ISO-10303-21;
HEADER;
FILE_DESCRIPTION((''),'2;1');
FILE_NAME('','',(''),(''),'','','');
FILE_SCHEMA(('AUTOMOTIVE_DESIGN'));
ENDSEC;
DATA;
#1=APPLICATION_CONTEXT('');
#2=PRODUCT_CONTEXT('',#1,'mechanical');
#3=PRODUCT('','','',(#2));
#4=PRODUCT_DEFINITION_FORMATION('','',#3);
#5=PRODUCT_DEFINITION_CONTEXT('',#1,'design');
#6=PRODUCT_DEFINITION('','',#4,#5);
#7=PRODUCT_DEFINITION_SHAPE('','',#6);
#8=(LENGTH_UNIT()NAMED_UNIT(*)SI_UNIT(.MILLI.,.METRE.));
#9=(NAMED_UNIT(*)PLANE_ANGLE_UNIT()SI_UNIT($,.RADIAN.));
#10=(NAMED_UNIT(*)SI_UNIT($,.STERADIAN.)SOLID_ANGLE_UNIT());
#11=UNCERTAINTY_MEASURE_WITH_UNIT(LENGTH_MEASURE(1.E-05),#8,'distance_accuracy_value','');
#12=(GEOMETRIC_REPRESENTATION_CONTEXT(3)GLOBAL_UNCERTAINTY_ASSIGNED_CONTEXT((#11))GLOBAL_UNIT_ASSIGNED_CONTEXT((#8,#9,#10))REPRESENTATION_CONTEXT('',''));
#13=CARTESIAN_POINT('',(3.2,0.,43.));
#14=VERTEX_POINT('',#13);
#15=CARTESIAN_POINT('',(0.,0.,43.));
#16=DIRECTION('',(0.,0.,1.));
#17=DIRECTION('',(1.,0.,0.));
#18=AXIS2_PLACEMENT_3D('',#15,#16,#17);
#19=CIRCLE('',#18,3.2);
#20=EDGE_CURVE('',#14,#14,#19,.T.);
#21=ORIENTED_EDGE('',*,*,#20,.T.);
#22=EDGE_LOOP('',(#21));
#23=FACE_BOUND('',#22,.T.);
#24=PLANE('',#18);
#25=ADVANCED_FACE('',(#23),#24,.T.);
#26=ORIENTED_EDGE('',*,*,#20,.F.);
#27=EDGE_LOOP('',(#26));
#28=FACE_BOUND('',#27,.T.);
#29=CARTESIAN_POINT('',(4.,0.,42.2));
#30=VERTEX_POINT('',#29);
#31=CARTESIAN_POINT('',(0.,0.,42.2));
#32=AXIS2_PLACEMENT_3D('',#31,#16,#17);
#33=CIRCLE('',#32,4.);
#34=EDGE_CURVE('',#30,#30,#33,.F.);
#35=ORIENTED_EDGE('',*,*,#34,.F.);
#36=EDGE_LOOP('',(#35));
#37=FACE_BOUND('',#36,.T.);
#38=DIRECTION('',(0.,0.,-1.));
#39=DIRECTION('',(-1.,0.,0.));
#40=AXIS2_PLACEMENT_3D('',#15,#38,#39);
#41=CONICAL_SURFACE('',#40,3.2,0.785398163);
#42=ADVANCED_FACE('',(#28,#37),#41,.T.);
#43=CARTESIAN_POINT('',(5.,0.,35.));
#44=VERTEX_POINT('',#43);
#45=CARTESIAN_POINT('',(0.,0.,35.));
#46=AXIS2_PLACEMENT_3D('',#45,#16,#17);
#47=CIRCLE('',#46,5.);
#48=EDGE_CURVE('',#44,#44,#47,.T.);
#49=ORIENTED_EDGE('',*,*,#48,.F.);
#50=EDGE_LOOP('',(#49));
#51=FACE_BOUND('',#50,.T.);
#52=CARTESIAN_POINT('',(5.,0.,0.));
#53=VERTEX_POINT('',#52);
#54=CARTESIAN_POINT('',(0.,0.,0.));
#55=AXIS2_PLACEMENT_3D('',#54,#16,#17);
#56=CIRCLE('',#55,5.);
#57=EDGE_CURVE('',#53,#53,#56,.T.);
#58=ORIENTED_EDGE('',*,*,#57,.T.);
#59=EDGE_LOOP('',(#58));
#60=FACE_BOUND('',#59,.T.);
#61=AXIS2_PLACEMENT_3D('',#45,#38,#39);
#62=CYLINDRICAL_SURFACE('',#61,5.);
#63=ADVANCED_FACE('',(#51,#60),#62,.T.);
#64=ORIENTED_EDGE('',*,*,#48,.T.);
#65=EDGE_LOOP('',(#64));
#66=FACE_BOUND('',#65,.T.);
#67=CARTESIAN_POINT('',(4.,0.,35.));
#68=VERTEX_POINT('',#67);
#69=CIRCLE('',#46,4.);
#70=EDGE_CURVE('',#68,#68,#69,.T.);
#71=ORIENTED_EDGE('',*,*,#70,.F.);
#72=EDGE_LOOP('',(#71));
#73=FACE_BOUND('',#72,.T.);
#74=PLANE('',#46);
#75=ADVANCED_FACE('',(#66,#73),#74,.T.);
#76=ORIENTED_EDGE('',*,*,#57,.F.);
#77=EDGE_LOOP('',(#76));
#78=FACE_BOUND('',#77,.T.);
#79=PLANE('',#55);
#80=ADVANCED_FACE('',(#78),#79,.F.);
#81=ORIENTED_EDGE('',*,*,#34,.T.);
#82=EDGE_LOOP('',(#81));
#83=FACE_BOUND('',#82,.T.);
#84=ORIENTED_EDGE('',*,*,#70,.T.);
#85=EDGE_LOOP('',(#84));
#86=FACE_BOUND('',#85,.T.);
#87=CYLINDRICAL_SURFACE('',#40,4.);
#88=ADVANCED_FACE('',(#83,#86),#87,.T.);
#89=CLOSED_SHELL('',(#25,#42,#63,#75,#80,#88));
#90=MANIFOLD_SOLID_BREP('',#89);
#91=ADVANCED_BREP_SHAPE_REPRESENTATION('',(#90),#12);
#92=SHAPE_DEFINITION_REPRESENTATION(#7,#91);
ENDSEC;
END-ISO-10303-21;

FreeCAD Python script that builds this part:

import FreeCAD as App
import Part
import Sketcher
from FreeCAD import Vector


def edges_at(feature, points):
    """Names of the edges that pass closest to the given points."""
    edges = feature.Shape.Edges
    near = lambda p: min(range(len(edges)), key=lambda i: edges[i].distToShape(Part.Vertex(*p))[0])
    return sorted({f"Edge{near(p) + 1}" for p in points})

doc = App.newDocument("Part")
params = doc.addObject("Spreadsheet::Sheet", "Params")
for row, (alias, value) in enumerate([
    ("sketch1_diameter", "10 mm"),
    ("pad1_length", "35 mm"),
    ("sketch2_diameter", "8 mm"),
    ("pad2_length", "8 mm"),
    ("chamfer_size", "0.8 mm"),
], start=1):
    params.set(f"A{row}", alias)
    params.set(f"B{row}", "=" + value)
    params.setAlias(f"B{row}", alias)

body = doc.addObject("PartDesign::Body", "Body")

# Sketch on XY plane
sketch1 = body.newObject("Sketcher::SketchObject", "Sketch")
sketch1.AttachmentSupport = (doc.getObject("XY_Plane"), [""])
sketch1.MapMode = "FlatFace"
sketch1.addGeometry(Part.Circle(Vector(0, 0, 0), Vector(0, 0, 1), 5), False)
sketch1.addConstraint([
    Sketcher.Constraint("Coincident", 0, 3, -1, 1),
    Sketcher.Constraint("Diameter", 0, 10.0),
])
sketch1.setExpression("Constraints[1]", "Params.sketch1_diameter")
pad1 = body.newObject("PartDesign::Pad", "Pad")
pad1.Profile = sketch1
pad1.setExpression("Length", "Params.pad1_length")

# Sketch on XY plane
sketch2 = body.newObject("Sketcher::SketchObject", "Sketch001")
sketch2.AttachmentSupport = (doc.getObject("XY_Plane"), [""])
sketch2.MapMode = "FlatFace"
sketch2.AttachmentOffset = App.Placement(Vector(0, 0, 35), App.Rotation())
sketch2.addGeometry(Part.Circle(Vector(0, 0, 0), Vector(0, 0, 1), 4), False)
sketch2.addConstraint([
    Sketcher.Constraint("Coincident", 0, 3, -1, 1),
    Sketcher.Constraint("Diameter", 0, 8.0),
])
sketch2.setExpression("Constraints[1]", "Params.sketch2_diameter")
pad2 = body.newObject("PartDesign::Pad", "Pad001")
pad2.Profile = sketch2
pad2.setExpression("Length", "Params.pad2_length")
doc.recompute()

chamfer = body.newObject("PartDesign::Chamfer", "Chamfer")
chamfer.Base = (pad2, edges_at(pad2, [(-4, 0, 43)]))
chamfer.setExpression("Size", "Params.chamfer_size")

doc.recompute()
